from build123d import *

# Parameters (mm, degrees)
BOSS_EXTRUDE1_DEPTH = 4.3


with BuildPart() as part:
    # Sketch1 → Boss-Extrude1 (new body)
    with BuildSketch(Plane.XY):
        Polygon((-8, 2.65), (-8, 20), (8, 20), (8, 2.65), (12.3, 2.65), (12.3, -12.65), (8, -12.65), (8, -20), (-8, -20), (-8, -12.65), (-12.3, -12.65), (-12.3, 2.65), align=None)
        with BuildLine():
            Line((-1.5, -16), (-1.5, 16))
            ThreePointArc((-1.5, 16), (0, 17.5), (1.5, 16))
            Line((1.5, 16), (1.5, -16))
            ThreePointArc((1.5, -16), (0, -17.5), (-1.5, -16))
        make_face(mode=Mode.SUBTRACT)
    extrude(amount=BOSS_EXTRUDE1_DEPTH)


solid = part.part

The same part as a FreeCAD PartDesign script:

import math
import FreeCAD as App
import Part
import Sketcher

V = App.Vector
Q = App.Units.Quantity


def add_polygon(sketch, points):
    """Adds a closed chain of lines whose ends are joined by coincident constraints."""
    first, n = sketch.GeometryCount, len(points)
    for a, b in zip(points, points[1:] + points[:1]):
        sketch.addGeometry(Part.LineSegment(App.Vector(*a, 0), App.Vector(*b, 0)), False)
    for i in range(n):
        sketch.addConstraint(Sketcher.Constraint("Coincident", first + i, 2, first + (i + 1) % n, 1))

doc = App.newDocument("Part")
body = doc.addObject("PartDesign::Body", "Body")

sketch1 = body.newObject("Sketcher::SketchObject", "Sketch")
sketch1.AttachmentSupport = (doc.getObject("XY_Plane"), [""])
sketch1.MapMode = "FlatFace"
add_polygon(sketch1, [(-8, 20), (-8, 2.65), (-12.3, 2.65), (-12.3, -12.65), (-8, -12.65), (-8, -20), (8, -20), (8, -12.65), (12.3, -12.65), (12.3, 2.65), (8, 2.65), (8, 20)])
sketch1.addGeometry(Part.LineSegment(V(-1.5, -16, 0), V(-1.5, 16, 0)), False)
sketch1.addGeometry(Part.ArcOfCircle(Part.Circle(V(0, 16, 0), V(0, 0, 1), 1.5), math.radians(0), math.radians(180)), False)
sketch1.addGeometry(Part.LineSegment(V(1.5, 16, 0), V(1.5, -16, 0)), False)
sketch1.addGeometry(Part.ArcOfCircle(Part.Circle(V(0, -16, 0), V(0, 0, 1), 1.5), math.radians(180), math.radians(360)), False)
sketch1.addConstraint(Sketcher.Constraint("Tangent", 12, 2, 13, 2))
sketch1.addConstraint(Sketcher.Constraint("Tangent", 13, 1, 14, 1))
sketch1.addConstraint(Sketcher.Constraint("Tangent", 14, 2, 15, 2))
sketch1.addConstraint(Sketcher.Constraint("Tangent", 15, 1, 12, 1))
sketch1.addConstraint(Sketcher.Constraint("Vertical", 0))
sketch1.addConstraint(Sketcher.Constraint("Horizontal", 1))
sketch1.addConstraint(Sketcher.Constraint("Vertical", 2))
sketch1.addConstraint(Sketcher.Constraint("Horizontal", 3))
sketch1.addConstraint(Sketcher.Constraint("Vertical", 4))
sketch1.addConstraint(Sketcher.Constraint("Horizontal", 5))
sketch1.addConstraint(Sketcher.Constraint("Vertical", 6))
sketch1.addConstraint(Sketcher.Constraint("Horizontal", 7))
sketch1.addConstraint(Sketcher.Constraint("Vertical", 8))
sketch1.addConstraint(Sketcher.Constraint("Horizontal", 9))
sketch1.addConstraint(Sketcher.Constraint("Vertical", 10))
sketch1.addConstraint(Sketcher.Constraint("Horizontal", 11))
sketch1.addConstraint(Sketcher.Constraint("Vertical", 12))
sketch1.addConstraint(Sketcher.Constraint("Vertical", 14))
sketch1.addConstraint(Sketcher.Constraint("Symmetric", 13, 3, 15, 3, -1, 1))
sketch1.addConstraint(Sketcher.Constraint("Symmetric", 4, 2, 10, 2, -1, 1))
sketch1.addConstraint(Sketcher.Constraint("Symmetric", 3, 2, 6, 2, -2))
sketch1.addConstraint(Sketcher.Constraint("Symmetric", 1, 2, 8, 2, -2))
sketch1.addConstraint(Sketcher.Constraint("Vertical", 0, 2, 3, 2))
sketch1.addConstraint(Sketcher.Constraint("Radius", 13, Q("1.5 mm")))
sketch1.addConstraint(Sketcher.Constraint("DistanceX", 5, 1, 5, 2, Q("16 mm")))
sketch1.addConstraint(Sketcher.Constraint("DistanceY", 12, 1, 12, 2, Q("32 mm")))
sketch1.addConstraint(Sketcher.Constraint("DistanceX", 1, 2, 1, 1, Q("4.3 mm")))
sketch1.addConstraint(Sketcher.Constraint("DistanceY", 2, 2, 2, 1, Q("15.3 mm")))
sketch1.addConstraint(Sketcher.Constraint("DistanceY", 4, 2, -1, 1, Q("20 mm")))
sketch1.addConstraint(Sketcher.Constraint("DistanceY", 0, 2, 0, 1, Q("17.35 mm")))
pad1 = body.newObject("PartDesign::Pad", "Pad")
pad1.Profile = sketch1
pad1.Length = 4.3

doc.recompute()
